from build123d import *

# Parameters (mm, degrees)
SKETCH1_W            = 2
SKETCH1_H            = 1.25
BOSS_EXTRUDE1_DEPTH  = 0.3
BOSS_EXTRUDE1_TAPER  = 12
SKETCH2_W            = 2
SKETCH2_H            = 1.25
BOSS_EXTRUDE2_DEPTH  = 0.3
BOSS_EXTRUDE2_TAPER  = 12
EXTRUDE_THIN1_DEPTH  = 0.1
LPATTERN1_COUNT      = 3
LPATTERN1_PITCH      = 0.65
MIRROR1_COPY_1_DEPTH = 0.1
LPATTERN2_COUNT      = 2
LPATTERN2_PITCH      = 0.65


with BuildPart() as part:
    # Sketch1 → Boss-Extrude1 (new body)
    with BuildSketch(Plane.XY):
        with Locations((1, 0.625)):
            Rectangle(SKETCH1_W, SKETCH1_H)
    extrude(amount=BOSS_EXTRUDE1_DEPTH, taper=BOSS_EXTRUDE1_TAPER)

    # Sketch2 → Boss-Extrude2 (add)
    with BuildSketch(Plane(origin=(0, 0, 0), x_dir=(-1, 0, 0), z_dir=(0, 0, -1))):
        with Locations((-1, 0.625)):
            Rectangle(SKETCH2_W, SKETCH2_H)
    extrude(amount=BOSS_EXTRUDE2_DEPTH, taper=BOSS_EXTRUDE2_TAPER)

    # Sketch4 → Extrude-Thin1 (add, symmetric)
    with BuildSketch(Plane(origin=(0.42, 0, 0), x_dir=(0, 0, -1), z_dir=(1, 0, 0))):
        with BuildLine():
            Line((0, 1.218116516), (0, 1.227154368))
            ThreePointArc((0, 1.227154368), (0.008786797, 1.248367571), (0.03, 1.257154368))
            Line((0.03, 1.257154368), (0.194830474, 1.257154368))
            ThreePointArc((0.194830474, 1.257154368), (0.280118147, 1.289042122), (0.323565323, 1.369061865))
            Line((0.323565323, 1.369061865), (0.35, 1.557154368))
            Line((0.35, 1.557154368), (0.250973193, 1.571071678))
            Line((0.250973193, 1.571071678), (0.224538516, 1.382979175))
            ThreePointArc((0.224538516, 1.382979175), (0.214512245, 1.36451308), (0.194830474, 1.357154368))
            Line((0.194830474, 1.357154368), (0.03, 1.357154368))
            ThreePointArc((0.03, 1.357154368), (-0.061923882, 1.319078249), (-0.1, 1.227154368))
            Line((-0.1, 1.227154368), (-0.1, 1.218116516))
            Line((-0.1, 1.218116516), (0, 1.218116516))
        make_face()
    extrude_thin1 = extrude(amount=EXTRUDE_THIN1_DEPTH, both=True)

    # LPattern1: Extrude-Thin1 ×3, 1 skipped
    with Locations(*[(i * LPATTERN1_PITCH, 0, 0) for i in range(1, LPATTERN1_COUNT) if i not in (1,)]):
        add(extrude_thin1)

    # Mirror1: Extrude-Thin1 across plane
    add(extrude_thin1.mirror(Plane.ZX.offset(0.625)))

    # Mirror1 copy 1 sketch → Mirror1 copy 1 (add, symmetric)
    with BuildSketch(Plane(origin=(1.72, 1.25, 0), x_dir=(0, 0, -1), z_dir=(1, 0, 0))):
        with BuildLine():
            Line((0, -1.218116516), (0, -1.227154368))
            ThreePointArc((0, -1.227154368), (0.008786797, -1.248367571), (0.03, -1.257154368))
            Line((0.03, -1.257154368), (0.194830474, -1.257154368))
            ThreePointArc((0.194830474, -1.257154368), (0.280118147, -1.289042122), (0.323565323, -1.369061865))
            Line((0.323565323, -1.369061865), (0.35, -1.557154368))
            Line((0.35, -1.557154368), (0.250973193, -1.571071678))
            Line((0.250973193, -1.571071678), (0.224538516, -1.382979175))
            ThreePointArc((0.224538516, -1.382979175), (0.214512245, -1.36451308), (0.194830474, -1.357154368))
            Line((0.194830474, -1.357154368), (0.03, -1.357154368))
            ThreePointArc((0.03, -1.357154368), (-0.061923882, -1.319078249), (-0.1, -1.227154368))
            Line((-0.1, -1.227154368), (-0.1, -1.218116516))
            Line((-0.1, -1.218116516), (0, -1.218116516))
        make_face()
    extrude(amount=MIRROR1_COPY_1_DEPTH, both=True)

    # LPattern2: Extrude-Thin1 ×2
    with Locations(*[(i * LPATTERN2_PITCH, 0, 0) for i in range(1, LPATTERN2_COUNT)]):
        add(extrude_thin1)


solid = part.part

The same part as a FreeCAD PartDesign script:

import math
import FreeCAD as App
import Part
import Sketcher
Q = App.Units.Quantity


def add_polygon(sketch, points):
    """Adds a closed chain of lines whose ends are joined by coincident constraints."""
    first, n = sketch.GeometryCount, len(points)
    for a, b in zip(points, points[1:] + points[:1]):
        sketch.addGeometry(Part.LineSegment(App.Vector(*a, 0), App.Vector(*b, 0)), False)
    for i in range(n):
        sketch.addConstraint(Sketcher.Constraint("Coincident", first + i, 2, first + (i + 1) % n, 1))

doc = App.newDocument("Part")
body = doc.addObject("PartDesign::Body", "Body")

# Sketch on XY plane
sketch1 = body.newObject("Sketcher::SketchObject", "Sketch")
sketch1.AttachmentSupport = (doc.getObject("XY_Plane"), [""])
sketch1.MapMode = "FlatFace"
add_polygon(sketch1, [(0, 1.2), (0, 0), (2, 0), (2, 1.2)])  # lines 0-3
sketch1.addConstraint([
    Sketcher.Constraint("Vertical", 0),
    Sketcher.Constraint("Horizontal", 1),
    Sketcher.Constraint("Vertical", 2),
    Sketcher.Constraint("Horizontal", 3),
    Sketcher.Constraint("Coincident", 0, 2, -1, 1),
    Sketcher.Constraint("DistanceX", 1, 1, 1, 2, 2.0),
    Sketcher.Constraint("DistanceY", 0, 2, 0, 1, 1.25),
])
pad1 = body.newObject("PartDesign::Pad", "Pad")
pad1.Profile = sketch1
pad1.Length = 0.3
pad1.TaperAngle = -12

# Sketch on XY plane
sketch2 = body.newObject("Sketcher::SketchObject", "Sketch001")
sketch2.AttachmentSupport = (doc.getObject("XY_Plane"), [""])
sketch2.MapMode = "FlatFace"
add_polygon(sketch2, [(2, 1.2), (2, 0), (0, 0), (0, 1.2)])  # lines 0-3
sketch2.addConstraint([
    Sketcher.Constraint("Vertical", 0),
    Sketcher.Constraint("Horizontal", 1),
    Sketcher.Constraint("Vertical", 2),
    Sketcher.Constraint("Horizontal", 3),
    Sketcher.Constraint("Coincident", 1, 2, -1, 1),
    Sketcher.Constraint("DistanceX", 1, 2, 1, 1, 2.0),
    Sketcher.Constraint("DistanceY", 0, 2, 0, 1, 1.25),
])
pad2 = body.newObject("PartDesign::Pad", "Pad001")
pad2.Profile = sketch2
pad2.Length = 0.3
pad2.Reversed = True
pad2.TaperAngle = -12

# Sketch on YZ plane
sketch3 = body.newObject("Sketcher::SketchObject", "Sketch002")
sketch3.AttachmentSupport = (doc.getObject("YZ_Plane"), [""])
sketch3.MapMode = "FlatFace"
sketch3.AttachmentOffset = App.Placement(App.Vector(0, 0, 0.42), App.Rotation())
sketch3.addGeometry([
    Part.LineSegment(App.Vector(1.218, 0, 0), App.Vector(1.227, 0, 0)),  # 0
    Part.ArcOfCircle(Part.Circle(App.Vector(1.227, -0.03, 0), App.Vector(0, 0, 1), 0.03), math.radians(0), math.radians(90)),  # 1
    Part.LineSegment(App.Vector(1.257, -0.03, 0), App.Vector(1.257, -0.195, 0)),  # 2
    Part.ArcOfCircle(Part.Circle(App.Vector(1.387, -0.195, 0), App.Vector(0, 0, 1), 0.13), math.radians(180), math.radians(262)),  # 3
    Part.LineSegment(App.Vector(1.369, -0.324, 0), App.Vector(1.557, -0.35, 0)),  # 4
    Part.LineSegment(App.Vector(1.557, -0.35, 0), App.Vector(1.571, -0.251, 0)),  # 5
    Part.LineSegment(App.Vector(1.571, -0.251, 0), App.Vector(1.383, -0.225, 0)),  # 6
    Part.ArcOfCircle(Part.Circle(App.Vector(1.387, -0.195, 0), App.Vector(0, 0, 1), 0.03), math.radians(180), math.radians(262)),  # 7
    Part.LineSegment(App.Vector(1.357, -0.195, 0), App.Vector(1.357, -0.03, 0)),  # 8
    Part.ArcOfCircle(Part.Circle(App.Vector(1.227, -0.03, 0), App.Vector(0, 0, 1), 0.13), math.radians(0), math.radians(90)),  # 9
    Part.LineSegment(App.Vector(1.227, 0.1, 0), App.Vector(1.218, 0.1, 0)),  # 10
    Part.LineSegment(App.Vector(1.218, 0.1, 0), App.Vector(1.218, 0, 0)),  # 11
], False)
sketch3.addConstraint([
    Sketcher.Constraint("Tangent", 0, 2, 1, 2),
    Sketcher.Constraint("Tangent", 1, 1, 2, 1),
    Sketcher.Constraint("Tangent", 2, 2, 3, 1),
    Sketcher.Constraint("Tangent", 3, 2, 4, 1),
    Sketcher.Constraint("Coincident", 4, 2, 5, 1),
    Sketcher.Constraint("Coincident", 5, 2, 6, 1),
    Sketcher.Constraint("Tangent", 6, 2, 7, 2),
    Sketcher.Constraint("Tangent", 7, 1, 8, 1),
    Sketcher.Constraint("Tangent", 8, 2, 9, 1),
    Sketcher.Constraint("Tangent", 9, 2, 10, 1),
    Sketcher.Constraint("Coincident", 10, 2, 11, 1),
    Sketcher.Constraint("Coincident", 11, 2, 0, 1),
    Sketcher.Constraint("Horizontal", 0),
    Sketcher.Constraint("Vertical", 2),
    Sketcher.Constraint("Vertical", 8),
    Sketcher.Constraint("Horizontal", 10),
    Sketcher.Constraint("Vertical", 11),
    Sketcher.Constraint("Coincident", 7, 3, 3, 3),
    Sketcher.Constraint("Coincident", 9, 3, 1, 3),
    Sketcher.Constraint("Equal", 1, 7),
    Sketcher.Constraint("PointOnObject", 0, 2, -1),
    Sketcher.Constraint("Perpendicular", 4, 5),
    Sketcher.Constraint("Perpendicular", 5, 6),
    Sketcher.Constraint("Angle", 4, Q("-8 deg")),
    Sketcher.Constraint("Radius", 1, 0.03),
    Sketcher.Constraint("Radius", 3, 0.13),
    Sketcher.Constraint("DistanceX", 2, 2, 4, 2, 0.3),
    Sketcher.Constraint("DistanceY", 4, 2, -1, 1, 0.35),
    Sketcher.Constraint("DistanceX", 0, 1, 0, 2, 0.009038),
    Sketcher.Constraint("DistanceX", -1, 1, 3, 2, 1.369062),
])
pad3 = body.newObject("PartDesign::Pad", "Pad002")
pad3.Profile = sketch3
pad3.Length = 0.2
pad3.Midplane = True
doc.recompute()

linearpattern = body.newObject("PartDesign::LinearPattern", "LinearPattern")
linearpattern.Originals = [pad3]
linearpattern.Direction = (doc.getObject("X_Axis"), [""])
linearpattern.Mode = "offset"
linearpattern.Offset = 1.3
linearpattern.Occurrences = 2
body.Tip = linearpattern
doc.recompute()

datumplane = body.newObject("PartDesign::Plane", "DatumPlane")
datumplane.AttachmentSupport = (doc.getObject("XZ_Plane"), [""])
datumplane.MapMode = "FlatFace"
datumplane.AttachmentOffset = App.Placement(App.Vector(0, 0, -0.625), App.Rotation())
mirrored = body.newObject("PartDesign::Mirrored", "Mirrored")
mirrored.Originals = [pad3]
mirrored.MirrorPlane = (datumplane, [""])
body.Tip = mirrored

# Sketch on YZ plane
sketch4 = body.newObject("Sketcher::SketchObject", "Sketch003")
sketch4.AttachmentSupport = (doc.getObject("YZ_Plane"), [""])
sketch4.MapMode = "FlatFace"
sketch4.AttachmentOffset = App.Placement(App.Vector(0, 0, 1.72), App.Rotation())
sketch4.addGeometry([
    Part.LineSegment(App.Vector(0.023, 0, 0), App.Vector(0.032, 0, 0)),  # 0
    Part.LineSegment(App.Vector(0.032, 0, 0), App.Vector(0.032, 0.1, 0)),  # 1
    Part.LineSegment(App.Vector(0.032, 0.1, 0), App.Vector(0.023, 0.1, 0)),  # 2
    Part.ArcOfCircle(Part.Circle(App.Vector(0.023, -0.03, 0), App.Vector(0, 0, 1), 0.13), math.radians(90), math.radians(180)),  # 3
    Part.LineSegment(App.Vector(-0.107, -0.03, 0), App.Vector(-0.107, -0.195, 0)),  # 4
    Part.ArcOfCircle(Part.Circle(App.Vector(-0.137, -0.195, 0), App.Vector(0, 0, 1), 0.03), math.radians(-82), math.radians(0)),  # 5
    Part.LineSegment(App.Vector(-0.133, -0.225, 0), App.Vector(-0.321, -0.251, 0)),  # 6
    Part.LineSegment(App.Vector(-0.321, -0.251, 0), App.Vector(-0.307, -0.35, 0)),  # 7
    Part.LineSegment(App.Vector(-0.307, -0.35, 0), App.Vector(-0.119, -0.324, 0)),  # 8
    Part.ArcOfCircle(Part.Circle(App.Vector(-0.137, -0.195, 0), App.Vector(0, 0, 1), 0.13), math.radians(-82), math.radians(0)),  # 9
    Part.LineSegment(App.Vector(-0.007, -0.195, 0), App.Vector(-0.007, -0.03, 0)),  # 10
    Part.ArcOfCircle(Part.Circle(App.Vector(0.023, -0.03, 0), App.Vector(0, 0, 1), 0.03), math.radians(90), math.radians(180)),  # 11
], False)
sketch4.addConstraint([
    Sketcher.Constraint("Coincident", 0, 2, 1, 1),
    Sketcher.Constraint("Coincident", 1, 2, 2, 1),
    Sketcher.Constraint("Tangent", 2, 2, 3, 1),
    Sketcher.Constraint("Tangent", 3, 2, 4, 1),
    Sketcher.Constraint("Tangent", 4, 2, 5, 2),
    Sketcher.Constraint("Tangent", 5, 1, 6, 1),
    Sketcher.Constraint("Coincident", 6, 2, 7, 1),
    Sketcher.Constraint("Coincident", 7, 2, 8, 1),
    Sketcher.Constraint("Tangent", 8, 2, 9, 1),
    Sketcher.Constraint("Tangent", 9, 2, 10, 1),
    Sketcher.Constraint("Tangent", 10, 2, 11, 2),
    Sketcher.Constraint("Tangent", 11, 1, 0, 1),
    Sketcher.Constraint("Horizontal", 0),
    Sketcher.Constraint("Vertical", 1),
    Sketcher.Constraint("Horizontal", 2),
    Sketcher.Constraint("Vertical", 4),
    Sketcher.Constraint("Vertical", 10),
    Sketcher.Constraint("Coincident", 9, 3, 5, 3),
    Sketcher.Constraint("Coincident", 11, 3, 3, 3),
    Sketcher.Constraint("Equal", 3, 9),
    Sketcher.Constraint("PointOnObject", 0, 2, -1),
    Sketcher.Constraint("Perpendicular", 6, 7),
    Sketcher.Constraint("Perpendicular", 7, 8),
    Sketcher.Constraint("Angle", 6, Q("-172 deg")),
    Sketcher.Constraint("Radius", 3, 0.13),
    Sketcher.Constraint("Radius", 5, 0.03),
    Sketcher.Constraint("DistanceX", 7, 2, 4, 2, 0.2),
    Sketcher.Constraint("DistanceY", 7, 2, -1, 1, 0.35),
    Sketcher.Constraint("DistanceX", 0, 1, 0, 2, 0.009038),
    Sketcher.Constraint("DistanceX", 5, 1, -1, 1, 0.132979),
])
pad4 = body.newObject("PartDesign::Pad", "Pad003")
pad4.Profile = sketch4
pad4.Length = 0.2
pad4.Midplane = True
doc.recompute()

linearpattern2 = body.newObject("PartDesign::LinearPattern", "LinearPattern001")
linearpattern2.Originals = [pad3]
linearpattern2.Direction = (doc.getObject("X_Axis"), [""])
linearpattern2.Mode = "offset"
linearpattern2.Offset = 0.65
linearpattern2.Occurrences = 2
body.Tip = linearpattern2

doc.recompute()
